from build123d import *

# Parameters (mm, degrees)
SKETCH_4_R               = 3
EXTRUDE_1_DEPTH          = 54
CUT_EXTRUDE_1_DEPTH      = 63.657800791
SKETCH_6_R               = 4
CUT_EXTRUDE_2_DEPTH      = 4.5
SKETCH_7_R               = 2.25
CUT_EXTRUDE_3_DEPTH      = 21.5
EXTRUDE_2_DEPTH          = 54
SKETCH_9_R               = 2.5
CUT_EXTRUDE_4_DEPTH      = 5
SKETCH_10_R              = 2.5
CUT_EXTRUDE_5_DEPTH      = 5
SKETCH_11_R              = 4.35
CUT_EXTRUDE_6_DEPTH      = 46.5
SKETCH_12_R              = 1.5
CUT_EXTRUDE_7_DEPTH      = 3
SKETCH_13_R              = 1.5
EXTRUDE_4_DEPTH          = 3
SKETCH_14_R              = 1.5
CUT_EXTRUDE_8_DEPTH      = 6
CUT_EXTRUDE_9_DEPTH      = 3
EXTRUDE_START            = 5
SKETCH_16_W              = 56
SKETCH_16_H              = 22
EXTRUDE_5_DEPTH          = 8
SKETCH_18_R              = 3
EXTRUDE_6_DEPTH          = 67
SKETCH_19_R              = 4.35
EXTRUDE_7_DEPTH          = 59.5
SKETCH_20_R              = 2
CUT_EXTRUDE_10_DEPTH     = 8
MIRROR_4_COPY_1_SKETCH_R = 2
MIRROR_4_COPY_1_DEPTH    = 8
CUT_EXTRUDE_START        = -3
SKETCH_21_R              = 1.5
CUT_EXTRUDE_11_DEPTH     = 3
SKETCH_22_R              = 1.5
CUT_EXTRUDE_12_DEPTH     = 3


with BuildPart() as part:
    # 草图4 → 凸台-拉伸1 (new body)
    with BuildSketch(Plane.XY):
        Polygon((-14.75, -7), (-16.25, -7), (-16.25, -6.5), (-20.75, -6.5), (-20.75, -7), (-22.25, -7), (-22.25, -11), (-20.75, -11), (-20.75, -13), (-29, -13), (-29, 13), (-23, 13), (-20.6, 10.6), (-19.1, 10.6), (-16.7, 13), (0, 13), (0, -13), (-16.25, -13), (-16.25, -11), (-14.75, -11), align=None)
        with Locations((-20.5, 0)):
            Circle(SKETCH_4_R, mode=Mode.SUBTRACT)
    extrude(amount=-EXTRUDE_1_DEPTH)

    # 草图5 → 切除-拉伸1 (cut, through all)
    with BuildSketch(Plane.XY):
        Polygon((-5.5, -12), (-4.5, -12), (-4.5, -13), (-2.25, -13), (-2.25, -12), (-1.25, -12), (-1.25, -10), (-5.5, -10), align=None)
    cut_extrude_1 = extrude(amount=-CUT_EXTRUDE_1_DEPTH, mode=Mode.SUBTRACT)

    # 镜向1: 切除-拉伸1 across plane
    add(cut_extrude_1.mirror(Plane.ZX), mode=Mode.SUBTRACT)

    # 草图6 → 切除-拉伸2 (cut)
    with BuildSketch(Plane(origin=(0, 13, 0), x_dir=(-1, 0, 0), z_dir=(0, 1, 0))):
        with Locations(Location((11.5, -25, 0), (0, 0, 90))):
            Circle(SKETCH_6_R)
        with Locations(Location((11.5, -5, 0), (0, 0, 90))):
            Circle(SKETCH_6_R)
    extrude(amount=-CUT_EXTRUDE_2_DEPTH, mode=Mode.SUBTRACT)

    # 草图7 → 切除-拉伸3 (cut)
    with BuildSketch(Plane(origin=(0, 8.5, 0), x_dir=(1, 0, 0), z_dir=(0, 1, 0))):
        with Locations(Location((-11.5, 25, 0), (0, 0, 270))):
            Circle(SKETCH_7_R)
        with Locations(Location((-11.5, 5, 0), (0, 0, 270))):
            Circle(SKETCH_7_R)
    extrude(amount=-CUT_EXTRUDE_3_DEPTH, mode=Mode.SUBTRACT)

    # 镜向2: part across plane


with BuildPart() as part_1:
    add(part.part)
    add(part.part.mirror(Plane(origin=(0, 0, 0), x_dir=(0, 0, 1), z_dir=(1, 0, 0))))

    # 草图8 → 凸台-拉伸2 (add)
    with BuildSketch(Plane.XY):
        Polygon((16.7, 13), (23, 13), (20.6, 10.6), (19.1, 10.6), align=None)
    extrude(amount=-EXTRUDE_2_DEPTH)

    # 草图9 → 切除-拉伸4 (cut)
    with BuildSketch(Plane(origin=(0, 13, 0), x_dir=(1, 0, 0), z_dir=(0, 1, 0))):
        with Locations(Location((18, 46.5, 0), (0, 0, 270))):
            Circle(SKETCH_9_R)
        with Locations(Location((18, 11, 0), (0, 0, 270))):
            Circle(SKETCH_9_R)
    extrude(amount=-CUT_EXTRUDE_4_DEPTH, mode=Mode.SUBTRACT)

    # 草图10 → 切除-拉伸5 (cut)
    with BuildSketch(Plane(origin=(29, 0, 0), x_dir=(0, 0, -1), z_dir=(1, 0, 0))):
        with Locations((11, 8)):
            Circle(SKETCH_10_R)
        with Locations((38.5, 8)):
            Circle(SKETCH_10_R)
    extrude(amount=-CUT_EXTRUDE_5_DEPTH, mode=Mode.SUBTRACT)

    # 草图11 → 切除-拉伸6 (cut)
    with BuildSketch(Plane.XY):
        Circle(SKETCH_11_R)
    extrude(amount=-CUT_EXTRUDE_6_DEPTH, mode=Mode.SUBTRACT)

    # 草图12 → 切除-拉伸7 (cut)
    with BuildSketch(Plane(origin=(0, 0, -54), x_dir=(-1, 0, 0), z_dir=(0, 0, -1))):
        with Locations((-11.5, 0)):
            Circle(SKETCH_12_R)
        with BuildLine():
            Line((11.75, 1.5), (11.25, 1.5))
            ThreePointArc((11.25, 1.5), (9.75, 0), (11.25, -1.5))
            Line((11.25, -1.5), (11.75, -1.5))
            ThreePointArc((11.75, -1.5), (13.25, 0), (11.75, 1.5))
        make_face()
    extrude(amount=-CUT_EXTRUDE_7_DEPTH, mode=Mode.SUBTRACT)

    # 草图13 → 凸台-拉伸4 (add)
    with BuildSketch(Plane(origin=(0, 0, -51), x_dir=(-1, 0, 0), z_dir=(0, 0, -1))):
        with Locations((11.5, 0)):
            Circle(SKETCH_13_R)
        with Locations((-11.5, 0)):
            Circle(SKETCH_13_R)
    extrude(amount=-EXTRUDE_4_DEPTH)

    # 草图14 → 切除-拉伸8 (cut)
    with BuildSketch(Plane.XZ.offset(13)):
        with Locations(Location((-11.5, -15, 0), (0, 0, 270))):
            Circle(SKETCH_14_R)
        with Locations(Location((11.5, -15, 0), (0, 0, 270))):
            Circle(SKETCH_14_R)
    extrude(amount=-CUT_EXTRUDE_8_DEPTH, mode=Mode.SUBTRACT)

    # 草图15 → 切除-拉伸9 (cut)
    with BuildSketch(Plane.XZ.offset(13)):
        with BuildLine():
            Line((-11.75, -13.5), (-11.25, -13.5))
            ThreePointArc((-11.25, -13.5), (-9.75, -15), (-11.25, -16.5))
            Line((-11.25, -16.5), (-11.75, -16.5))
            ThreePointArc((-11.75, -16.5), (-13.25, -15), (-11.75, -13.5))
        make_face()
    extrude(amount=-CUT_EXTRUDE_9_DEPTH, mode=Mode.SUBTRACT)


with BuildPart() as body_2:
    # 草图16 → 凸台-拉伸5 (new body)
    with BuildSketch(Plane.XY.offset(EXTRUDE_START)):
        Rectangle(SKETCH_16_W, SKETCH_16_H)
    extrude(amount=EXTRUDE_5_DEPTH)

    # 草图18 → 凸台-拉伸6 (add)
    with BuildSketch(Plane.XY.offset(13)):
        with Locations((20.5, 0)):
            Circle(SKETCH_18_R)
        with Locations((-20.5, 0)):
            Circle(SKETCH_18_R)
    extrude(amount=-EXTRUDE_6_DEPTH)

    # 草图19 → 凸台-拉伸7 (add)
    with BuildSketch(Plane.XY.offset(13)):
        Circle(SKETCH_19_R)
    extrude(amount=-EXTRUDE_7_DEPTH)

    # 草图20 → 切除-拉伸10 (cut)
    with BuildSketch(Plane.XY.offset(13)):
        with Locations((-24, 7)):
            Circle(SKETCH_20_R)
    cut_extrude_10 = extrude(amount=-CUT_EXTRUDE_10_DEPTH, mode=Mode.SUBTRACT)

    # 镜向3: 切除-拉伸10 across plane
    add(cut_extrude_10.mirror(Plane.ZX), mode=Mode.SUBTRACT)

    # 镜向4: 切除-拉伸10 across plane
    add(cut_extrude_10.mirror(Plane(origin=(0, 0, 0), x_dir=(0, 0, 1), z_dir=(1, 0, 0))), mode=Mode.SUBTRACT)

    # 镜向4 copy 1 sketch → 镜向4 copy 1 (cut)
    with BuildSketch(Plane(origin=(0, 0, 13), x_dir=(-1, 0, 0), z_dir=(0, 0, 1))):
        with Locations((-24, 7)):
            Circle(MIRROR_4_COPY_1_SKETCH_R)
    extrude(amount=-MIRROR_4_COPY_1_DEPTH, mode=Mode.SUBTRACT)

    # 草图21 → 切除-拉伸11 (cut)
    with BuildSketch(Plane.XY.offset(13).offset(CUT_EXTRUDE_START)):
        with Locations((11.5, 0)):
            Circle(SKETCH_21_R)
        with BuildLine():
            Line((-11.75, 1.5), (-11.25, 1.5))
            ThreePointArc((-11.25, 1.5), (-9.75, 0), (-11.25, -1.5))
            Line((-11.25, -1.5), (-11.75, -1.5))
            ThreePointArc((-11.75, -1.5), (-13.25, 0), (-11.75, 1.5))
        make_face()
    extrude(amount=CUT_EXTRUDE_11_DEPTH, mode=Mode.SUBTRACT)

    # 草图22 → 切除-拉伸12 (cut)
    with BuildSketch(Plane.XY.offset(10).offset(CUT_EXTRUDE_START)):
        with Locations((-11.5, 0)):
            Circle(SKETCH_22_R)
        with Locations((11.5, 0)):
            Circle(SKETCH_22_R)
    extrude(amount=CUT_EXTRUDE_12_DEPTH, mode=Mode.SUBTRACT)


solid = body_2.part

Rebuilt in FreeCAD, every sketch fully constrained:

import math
import FreeCAD as App
import Part
import Sketcher
from FreeCAD import Vector

doc = App.newDocument("Part")
body = doc.addObject("PartDesign::Body", "Body")

sketch1 = body.newObject("Sketcher::SketchObject", "Sketch")
sketch1.AttachmentSupport = (doc.getObject("XY_Plane"), [""])
sketch1.MapMode = "FlatFace"
sketch1.addGeometry([
    Part.LineSegment(Vector(-16.25, -7, 0), Vector(-14.75, -7, 0)),
    Part.LineSegment(Vector(-14.75, -7, 0), Vector(-14.75, -11, 0)),
    Part.LineSegment(Vector(-14.75, -11, 0), Vector(-16.25, -11, 0)),
    Part.LineSegment(Vector(-16.25, -11, 0), Vector(-16.25, -13, 0)),
    Part.LineSegment(Vector(-16.25, -13, 0), Vector(0, -13, 0)),
    Part.LineSegment(Vector(0, -13, 0), Vector(0, 13, 0)),
    Part.LineSegment(Vector(0, 13, 0), Vector(-16.7, 13, 0)),
    Part.LineSegment(Vector(-16.7, 13, 0), Vector(-19.1, 10.6, 0)),
    Part.LineSegment(Vector(-19.1, 10.6, 0), Vector(-20.6, 10.6, 0)),
    Part.LineSegment(Vector(-20.6, 10.6, 0), Vector(-23, 13, 0)),
    Part.LineSegment(Vector(-23, 13, 0), Vector(-29, 13, 0)),
    Part.LineSegment(Vector(-29, 13, 0), Vector(-29, -13, 0)),
    Part.LineSegment(Vector(-29, -13, 0), Vector(-20.75, -13, 0)),
    Part.LineSegment(Vector(-20.75, -13, 0), Vector(-20.75, -11, 0)),
    Part.LineSegment(Vector(-20.75, -11, 0), Vector(-22.25, -11, 0)),
    Part.LineSegment(Vector(-22.25, -11, 0), Vector(-22.25, -7, 0)),
    Part.LineSegment(Vector(-22.25, -7, 0), Vector(-20.75, -7, 0)),
    Part.LineSegment(Vector(-20.75, -7, 0), Vector(-20.75, -6.5, 0)),
    Part.LineSegment(Vector(-20.75, -6.5, 0), Vector(-16.25, -6.5, 0)),
    Part.LineSegment(Vector(-16.25, -6.5, 0), Vector(-16.25, -7, 0)),
    Part.Circle(Vector(-20.5, 0, 0), Vector(0, 0, 1), 3),
], False)
sketch1.addConstraint([
    Sketcher.Constraint("Coincident", 0, 2, 1, 1),
    Sketcher.Constraint("Coincident", 1, 2, 2, 1),
    Sketcher.Constraint("Coincident", 2, 2, 3, 1),
    Sketcher.Constraint("Coincident", 3, 2, 4, 1),
    Sketcher.Constraint("Coincident", 4, 2, 5, 1),
    Sketcher.Constraint("Coincident", 5, 2, 6, 1),
    Sketcher.Constraint("Coincident", 6, 2, 7, 1),
    Sketcher.Constraint("Coincident", 7, 2, 8, 1),
    Sketcher.Constraint("Coincident", 8, 2, 9, 1),
    Sketcher.Constraint("Coincident", 9, 2, 10, 1),
    Sketcher.Constraint("Coincident", 10, 2, 11, 1),
    Sketcher.Constraint("Coincident", 11, 2, 12, 1),
    Sketcher.Constraint("Coincident", 12, 2, 13, 1),
    Sketcher.Constraint("Coincident", 13, 2, 14, 1),
    Sketcher.Constraint("Coincident", 14, 2, 15, 1),
    Sketcher.Constraint("Coincident", 15, 2, 16, 1),
    Sketcher.Constraint("Coincident", 16, 2, 17, 1),
    Sketcher.Constraint("Coincident", 17, 2, 18, 1),
    Sketcher.Constraint("Coincident", 18, 2, 19, 1),
    Sketcher.Constraint("Coincident", 19, 2, 0, 1),
    Sketcher.Constraint("Horizontal", 0),
    Sketcher.Constraint("Vertical", 1),
    Sketcher.Constraint("Horizontal", 2),
    Sketcher.Constraint("Vertical", 3),
    Sketcher.Constraint("Horizontal", 4),
    Sketcher.Constraint("Vertical", 5),
    Sketcher.Constraint("Horizontal", 6),
    Sketcher.Constraint("Horizontal", 8),
    Sketcher.Constraint("Horizontal", 10),
    Sketcher.Constraint("Vertical", 11),
    Sketcher.Constraint("Horizontal", 12),
    Sketcher.Constraint("Vertical", 13),
    Sketcher.Constraint("Horizontal", 14),
    Sketcher.Constraint("Vertical", 15),
    Sketcher.Constraint("Horizontal", 16),
    Sketcher.Constraint("Vertical", 17),
    Sketcher.Constraint("Horizontal", 18),
    Sketcher.Constraint("Vertical", 19),
    Sketcher.Constraint("Symmetric", 4, 2, 5, 2, -1, 1),
    Sketcher.Constraint("PointOnObject", 20, 3, -1),
    Sketcher.Constraint("Perpendicular", 7, 9),
    Sketcher.Constraint("Horizontal", 6, 2, 9, 2),
    Sketcher.Constraint("Horizontal", 4, 2, 11, 2),
    Sketcher.Constraint("Horizontal", 2, 2, 13, 2),
    Sketcher.Constraint("Horizontal", 0, 2, 15, 2),
    Sketcher.Constraint("Vertical", 13, 2, 16, 2),
    Sketcher.Constraint("Vertical", 3, 2, 18, 2),
    Sketcher.Constraint("Equal", 2, 8),
    Sketcher.Constraint("Equal", 8, 14),
    Sketcher.Constraint("Equal", 7, 9),
    Sketcher.Constraint("Diameter", 20, 6.0),
    Sketcher.Constraint("DistanceX", 10, 2, 10, 1, 6.0),
    Sketcher.Constraint("DistanceY", 1, 2, 1, 1, 4.0),
    Sketcher.Constraint("DistanceY", 3, 2, 3, 1, 2.0),
    Sketcher.Constraint("DistanceY", 5, 1, 5, 2, 26.0),
    Sketcher.Constraint("DistanceX", 0, 1, 0, 2, 1.5),
    Sketcher.Constraint("DistanceX", 6, 2, 6, 1, 16.7),
    Sketcher.Constraint("DistanceX", 18, 1, 18, 2, 4.5),
    Sketcher.Constraint("DistanceY", 17, 1, 17, 2, 0.5),
    Sketcher.Constraint("DistanceX", 9, 2, -1, 1, 23.0),
    Sketcher.Constraint("DistanceX", 4, 1, 4, 2, 16.25),
    Sketcher.Constraint("DistanceX", 20, 3, -1, 1, 20.5),
])
pad1 = body.newObject("PartDesign::Pad", "Pad")
pad1.Profile = sketch1
pad1.Length = 54
pad1.Reversed = True

sketch2 = body.newObject("Sketcher::SketchObject", "Sketch001")
sketch2.AttachmentSupport = (doc.getObject("XY_Plane"), [""])
sketch2.MapMode = "FlatFace"
sketch2.addGeometry([
    Part.LineSegment(Vector(-5.5, -12, 0), Vector(-4.5, -12, 0)),
    Part.LineSegment(Vector(-4.5, -12, 0), Vector(-4.5, -13, 0)),
    Part.LineSegment(Vector(-4.5, -13, 0), Vector(-2.25, -13, 0)),
    Part.LineSegment(Vector(-2.25, -13, 0), Vector(-2.25, -12, 0)),
    Part.LineSegment(Vector(-2.25, -12, 0), Vector(-1.25, -12, 0)),
    Part.LineSegment(Vector(-1.25, -12, 0), Vector(-1.25, -10, 0)),
    Part.LineSegment(Vector(-1.25, -10, 0), Vector(-5.5, -10, 0)),
    Part.LineSegment(Vector(-5.5, -10, 0), Vector(-5.5, -12, 0)),
], False)
sketch2.addConstraint([
    Sketcher.Constraint("Coincident", 0, 2, 1, 1),
    Sketcher.Constraint("Coincident", 1, 2, 2, 1),
    Sketcher.Constraint("Coincident", 2, 2, 3, 1),
    Sketcher.Constraint("Coincident", 3, 2, 4, 1),
    Sketcher.Constraint("Coincident", 4, 2, 5, 1),
    Sketcher.Constraint("Coincident", 5, 2, 6, 1),
    Sketcher.Constraint("Coincident", 6, 2, 7, 1),
    Sketcher.Constraint("Coincident", 7, 2, 0, 1),
    Sketcher.Constraint("Horizontal", 0),
    Sketcher.Constraint("Vertical", 1),
    Sketcher.Constraint("Horizontal", 2),
    Sketcher.Constraint("Vertical", 3),
    Sketcher.Constraint("Horizontal", 4),
    Sketcher.Constraint("Vertical", 5),
    Sketcher.Constraint("Horizontal", 6),
    Sketcher.Constraint("Vertical", 7),
    Sketcher.Constraint("Horizontal", 0, 2, 3, 2),
    Sketcher.Constraint("Equal", 0, 4),
    Sketcher.Constraint("Equal", 4, 1),
    Sketcher.Constraint("DistanceX", 0, 1, 0, 2, 1.0),
    Sketcher.Constraint("DistanceY", 5, 1, 5, 2, 2.0),
    Sketcher.Constraint("DistanceY", 0, 2, -1, 1, 12.0),
    Sketcher.Constraint("DistanceX", 2, 1, 2, 2, 2.25),
    Sketcher.Constraint("DistanceX", 0, 2, -1, 1, 4.5),
])
pocket1 = body.newObject("PartDesign::Pocket", "Pocket")
pocket1.Profile = sketch2
pocket1.Type = "ThroughAll"
doc.recompute()

mirrored = body.newObject("PartDesign::Mirrored", "Mirrored")
mirrored.Originals = [pocket1]
mirrored.MirrorPlane = (doc.getObject("XZ_Plane"), [""])
body.Tip = mirrored

sketch3 = body.newObject("Sketcher::SketchObject", "Sketch002")
sketch3.AttachmentSupport = (doc.getObject("XZ_Plane"), [""])
sketch3.MapMode = "FlatFace"
sketch3.AttachmentOffset = App.Placement(Vector(0, 0, -13), App.Rotation())
sketch3.addGeometry([
    Part.Circle(Vector(-11.5, -25, 0), Vector(0, 0, 1), 4),
    Part.Circle(Vector(-11.5, -5, 0), Vector(0, 0, 1), 4),
], False)
sketch3.addConstraint([
    Sketcher.Constraint("Equal", 0, 1),
    Sketcher.Constraint("Vertical", 0, 3, 1, 3),
    Sketcher.Constraint("Diameter", 0, 8.0),
    Sketcher.Constraint("DistanceY", 0, 3, -1, 1, 25.0),
    Sketcher.Constraint("DistanceY", 1, 3, -1, 1, 5.0),
    Sketcher.Constraint("DistanceX", 0, 3, -1, 1, 11.5),
])
pocket2 = body.newObject("PartDesign::Pocket", "Pocket001")
pocket2.Profile = sketch3
pocket2.Length = 4.5
pocket2.Reversed = True

sketch4 = body.newObject("Sketcher::SketchObject", "Sketch003")
sketch4.AttachmentSupport = (doc.getObject("XZ_Plane"), [""])
sketch4.MapMode = "FlatFace"
sketch4.AttachmentOffset = App.Placement(Vector(0, 0, -8.5), App.Rotation())
sketch4.addGeometry([
    Part.Circle(Vector(-11.5, -25, 0), Vector(0, 0, 1), 2.25),
    Part.Circle(Vector(-11.5, -5, 0), Vector(0, 0, 1), 2.25),
], False)
sketch4.addConstraint([
    Sketcher.Constraint("Equal", 0, 1),
    Sketcher.Constraint("Vertical", 0, 3, 1, 3),
    Sketcher.Constraint("Diameter", 0, 4.5),
    Sketcher.Constraint("DistanceY", 0, 3, -1, 1, 25.0),
    Sketcher.Constraint("DistanceY", 1, 3, -1, 1, 5.0),
    Sketcher.Constraint("DistanceX", 0, 3, -1, 1, 11.5),
])
pocket3 = body.newObject("PartDesign::Pocket", "Pocket002")
pocket3.Profile = sketch4
pocket3.Length = 21.5
pocket3.Reversed = True
body2 = doc.addObject("PartDesign::Body", "Body001")
doc.recompute()

body2.BaseFeature = body
doc.recompute()

mirroring = doc.addObject("Part::Mirroring", "Mirroring")
mirroring.Source = body
mirroring.Base = Vector(0, 0, 0)
mirroring.Normal = Vector(1, 0, 0)
body3 = doc.addObject("PartDesign::Body", "Body002")
body3.BaseFeature = mirroring
boolean = body2.newObject("PartDesign::Boolean", "Boolean")
boolean.Type = "Fuse"
boolean.addObjects([body3])
doc.recompute()

sketch5 = body2.newObject("Sketcher::SketchObject", "Sketch004")
sketch5.AttachmentSupport = (doc.getObject("XY_Plane001"), [""])
sketch5.MapMode = "FlatFace"
sketch5.addGeometry([
    Part.LineSegment(Vector(23, 13, 0), Vector(16.7, 13, 0)),
    Part.LineSegment(Vector(16.7, 13, 0), Vector(19.1, 10.6, 0)),
    Part.LineSegment(Vector(19.1, 10.6, 0), Vector(20.6, 10.6, 0)),
    Part.LineSegment(Vector(20.6, 10.6, 0), Vector(23, 13, 0)),
], False)
sketch5.addConstraint([
    Sketcher.Constraint("Coincident", 0, 2, 1, 1),
    Sketcher.Constraint("Coincident", 1, 2, 2, 1),
    Sketcher.Constraint("Coincident", 2, 2, 3, 1),
    Sketcher.Constraint("Coincident", 3, 2, 0, 1),
    Sketcher.Constraint("Horizontal", 0),
    Sketcher.Constraint("Horizontal", 2),
    Sketcher.Constraint("Perpendicular", 1, 3),
    Sketcher.Constraint("Equal", 1, 3),
    Sketcher.Constraint("DistanceX", 0, 2, 0, 1, 6.3),
    Sketcher.Constraint("DistanceX", 2, 1, 2, 2, 1.5),
    Sketcher.Constraint("DistanceY", -1, 1, 0, 2, 13.0),
    Sketcher.Constraint("DistanceX", -1, 1, 3, 2, 23.0),
])
pad2 = body2.newObject("PartDesign::Pad", "Pad001")
pad2.Profile = sketch5
pad2.Length = 54
pad2.Reversed = True

sketch6 = body2.newObject("Sketcher::SketchObject", "Sketch005")
sketch6.AttachmentSupport = (doc.getObject("XZ_Plane001"), [""])
sketch6.MapMode = "FlatFace"
sketch6.AttachmentOffset = App.Placement(Vector(0, 0, -13), App.Rotation())
sketch6.addGeometry([
    Part.Circle(Vector(18, -46.5, 0), Vector(0, 0, 1), 2.5),
    Part.Circle(Vector(18, -11, 0), Vector(0, 0, 1), 2.5),
], False)
sketch6.addConstraint([
    Sketcher.Constraint("Equal", 0, 1),
    Sketcher.Constraint("Vertical", 0, 3, 1, 3),
    Sketcher.Constraint("Diameter", 0, 5.0),
    Sketcher.Constraint("DistanceX", -1, 1, 0, 3, 18.0),
    Sketcher.Constraint("DistanceY", 1, 3, -1, 1, 11.0),
    Sketcher.Constraint("DistanceY", 0, 3, -1, 1, 46.5),
])
pocket4 = body2.newObject("PartDesign::Pocket", "Pocket003")
pocket4.Profile = sketch6
pocket4.Length = 5
pocket4.Reversed = True

sketch7 = body2.newObject("Sketcher::SketchObject", "Sketch006")
sketch7.AttachmentSupport = (doc.getObject("YZ_Plane001"), [""])
sketch7.MapMode = "FlatFace"
sketch7.AttachmentOffset = App.Placement(Vector(0, 0, 29), App.Rotation())
sketch7.addGeometry([
    Part.Circle(Vector(8, -11, 0), Vector(0, 0, 1), 2.5),
    Part.Circle(Vector(8, -38.5, 0), Vector(0, 0, 1), 2.5),
], False)
sketch7.addConstraint([
    Sketcher.Constraint("Equal", 0, 1),
    Sketcher.Constraint("Vertical", 0, 3, 1, 3),
    Sketcher.Constraint("Diameter", 0, 5.0),
    Sketcher.Constraint("DistanceX", -1, 1, 0, 3, 8.0),
    Sketcher.Constraint("DistanceY", 0, 3, -1, 1, 11.0),
    Sketcher.Constraint("DistanceY", 1, 3, -1, 1, 38.5),
])
pocket5 = body2.newObject("PartDesign::Pocket", "Pocket004")
pocket5.Profile = sketch7
pocket5.Length = 5

sketch8 = body2.newObject("Sketcher::SketchObject", "Sketch007")
sketch8.AttachmentSupport = (doc.getObject("XY_Plane001"), [""])
sketch8.MapMode = "FlatFace"
sketch8.addGeometry(Part.Circle(Vector(0, 0, 0), Vector(0, 0, 1), 4.35), False)
sketch8.addConstraint([
    Sketcher.Constraint("Coincident", 0, 3, -1, 1),
    Sketcher.Constraint("Diameter", 0, 8.7),
])
pocket6 = body2.newObject("PartDesign::Pocket", "Pocket005")
pocket6.Profile = sketch8
pocket6.Length = 46.5

sketch9 = body2.newObject("Sketcher::SketchObject", "Sketch008")
sketch9.AttachmentSupport = (doc.getObject("XY_Plane001"), [""])
sketch9.MapMode = "FlatFace"
sketch9.AttachmentOffset = App.Placement(Vector(0, 0, -54), App.Rotation())
sketch9.addGeometry([
    Part.Circle(Vector(11.5, 0, 0), Vector(0, 0, 1), 1.5),
    Part.LineSegment(Vector(-11.75, 1.5, 0), Vector(-11.25, 1.5, 0)),
    Part.ArcOfCircle(Part.Circle(Vector(-11.25, 0, 0), Vector(0, 0, 1), 1.5), math.radians(-90), math.radians(90)),
    Part.LineSegment(Vector(-11.25, -1.5, 0), Vector(-11.75, -1.5, 0)),
    Part.ArcOfCircle(Part.Circle(Vector(-11.75, 0, 0), Vector(0, 0, 1), 1.5), math.radians(90), math.radians(270)),
], False)
sketch9.addConstraint([
    Sketcher.Constraint("Tangent", 1, 2, 2, 2),
    Sketcher.Constraint("Tangent", 2, 1, 3, 1),
    Sketcher.Constraint("Tangent", 3, 2, 4, 2),
    Sketcher.Constraint("Tangent", 4, 1, 1, 1),
    Sketcher.Constraint("Horizontal", 1),
    Sketcher.Constraint("Horizontal", 3),
    Sketcher.Constraint("Equal", 0, 2),
    Sketcher.Constraint("PointOnObject", 0, 3, -1),
    Sketcher.Constraint("PointOnObject", 2, 3, -1),
    Sketcher.Constraint("Diameter", 0, 3.0),
    Sketcher.Constraint("DistanceX", 1, 1, 1, 2, 0.5),
    Sketcher.Constraint("DistanceX", -1, 1, 0, 3, 11.5),
    Sketcher.Constraint("DistanceX", 2, 3, -1, 1, 11.25),
])
pocket7 = body2.newObject("PartDesign::Pocket", "Pocket006")
pocket7.Profile = sketch9
pocket7.Length = 3
pocket7.Reversed = True

sketch10 = body2.newObject("Sketcher::SketchObject", "Sketch009")
sketch10.AttachmentSupport = (doc.getObject("XY_Plane001"), [""])
sketch10.MapMode = "FlatFace"
sketch10.AttachmentOffset = App.Placement(Vector(0, 0, -51), App.Rotation())
sketch10.addGeometry([
    Part.Circle(Vector(-11.5, 0, 0), Vector(0, 0, 1), 1.5),
    Part.Circle(Vector(11.5, 0, 0), Vector(0, 0, 1), 1.5),
], False)
sketch10.addConstraint([
    Sketcher.Constraint("Equal", 0, 1),
    Sketcher.Constraint("Symmetric", 0, 3, 1, 3, -1, 1),
    Sketcher.Constraint("PointOnObject", 0, 3, -1),
    Sketcher.Constraint("Diameter", 0, 3.0),
    Sketcher.Constraint("DistanceX", 0, 3, 1, 3, 23.0),
])
pad3 = body2.newObject("PartDesign::Pad", "Pad002")
pad3.Profile = sketch10
pad3.Length = 3

sketch11 = body2.newObject("Sketcher::SketchObject", "Sketch010")
sketch11.AttachmentSupport = (doc.getObject("XZ_Plane001"), [""])
sketch11.MapMode = "FlatFace"
sketch11.AttachmentOffset = App.Placement(Vector(0, 0, 13), App.Rotation())
sketch11.addGeometry([
    Part.Circle(Vector(-11.5, -15, 0), Vector(0, 0, 1), 1.5),
    Part.Circle(Vector(11.5, -15, 0), Vector(0, 0, 1), 1.5),
], False)
sketch11.addConstraint([
    Sketcher.Constraint("Equal", 0, 1),
    Sketcher.Constraint("Symmetric", 0, 3, 1, 3, -2),
    Sketcher.Constraint("Diameter", 0, 3.0),
    Sketcher.Constraint("DistanceY", 0, 3, -1, 1, 15.0),
    Sketcher.Constraint("DistanceX", 0, 3, 1, 3, 23.0),
])
pocket8 = body2.newObject("PartDesign::Pocket", "Pocket007")
pocket8.Profile = sketch11
pocket8.Length = 6

sketch12 = body2.newObject("Sketcher::SketchObject", "Sketch011")
sketch12.AttachmentSupport = (doc.getObject("XZ_Plane001"), [""])
sketch12.MapMode = "FlatFace"
sketch12.AttachmentOffset = App.Placement(Vector(0, 0, 13), App.Rotation())
sketch12.addGeometry([
    Part.LineSegment(Vector(-11.25, -13.5, 0), Vector(-11.75, -13.5, 0)),
    Part.ArcOfCircle(Part.Circle(Vector(-11.75, -15, 0), Vector(0, 0, 1), 1.5), math.radians(90), math.radians(270)),
    Part.LineSegment(Vector(-11.75, -16.5, 0), Vector(-11.25, -16.5, 0)),
    Part.ArcOfCircle(Part.Circle(Vector(-11.25, -15, 0), Vector(0, 0, 1), 1.5), math.radians(-90), math.radians(90)),
], False)
sketch12.addConstraint([
    Sketcher.Constraint("Tangent", 0, 2, 1, 1),
    Sketcher.Constraint("Tangent", 1, 2, 2, 1),
    Sketcher.Constraint("Tangent", 2, 2, 3, 1),
    Sketcher.Constraint("Tangent", 3, 2, 0, 1),
    Sketcher.Constraint("Horizontal", 0),
    Sketcher.Constraint("Horizontal", 2),
    Sketcher.Constraint("Radius", 1, 1.5),
    Sketcher.Constraint("DistanceX", 0, 2, 0, 1, 0.5),
    Sketcher.Constraint("DistanceY", 1, 3, -1, 1, 15.0),
    Sketcher.Constraint("DistanceX", 1, 3, -1, 1, 11.75),
])
pocket9 = body2.newObject("PartDesign::Pocket", "Pocket008")
pocket9.Profile = sketch12
pocket9.Length = 3
body4 = doc.addObject("PartDesign::Body", "Body003")

sketch13 = body4.newObject("Sketcher::SketchObject", "Sketch012")
sketch13.AttachmentSupport = (doc.getObject("XY_Plane003"), [""])
sketch13.MapMode = "FlatFace"
sketch13.AttachmentOffset = App.Placement(Vector(0, 0, 5), App.Rotation())
sketch13.addGeometry([
    Part.LineSegment(Vector(-28, 11, 0), Vector(-28, -11, 0)),
    Part.LineSegment(Vector(-28, -11, 0), Vector(28, -11, 0)),
    Part.LineSegment(Vector(28, -11, 0), Vector(28, 11, 0)),
    Part.LineSegment(Vector(28, 11, 0), Vector(-28, 11, 0)),
], False)
sketch13.addConstraint([
    Sketcher.Constraint("Coincident", 0, 2, 1, 1),
    Sketcher.Constraint("Coincident", 1, 2, 2, 1),
    Sketcher.Constraint("Coincident", 2, 2, 3, 1),
    Sketcher.Constraint("Coincident", 3, 2, 0, 1),
    Sketcher.Constraint("Vertical", 0),
    Sketcher.Constraint("Horizontal", 1),
    Sketcher.Constraint("Vertical", 2),
    Sketcher.Constraint("Horizontal", 3),
    Sketcher.Constraint("Symmetric", 0, 2, 2, 2, -1, 1),
    Sketcher.Constraint("DistanceX", 1, 1, 1, 2, 56.0),
    Sketcher.Constraint("DistanceY", 0, 2, 0, 1, 22.0),
])
pad4 = body4.newObject("PartDesign::Pad", "Pad003")
pad4.Profile = sketch13
pad4.Length = 8

sketch14 = body4.newObject("Sketcher::SketchObject", "Sketch013")
sketch14.AttachmentSupport = (doc.getObject("XY_Plane003"), [""])
sketch14.MapMode = "FlatFace"
sketch14.AttachmentOffset = App.Placement(Vector(0, 0, 13), App.Rotation())
sketch14.addGeometry([
    Part.Circle(Vector(20.5, 0, 0), Vector(0, 0, 1), 3),
    Part.Circle(Vector(-20.5, 0, 0), Vector(0, 0, 1), 3),
], False)
sketch14.addConstraint([
    Sketcher.Constraint("Equal", 0, 1),
    Sketcher.Constraint("Symmetric", 0, 3, 1, 3, -1, 1),
    Sketcher.Constraint("PointOnObject", 0, 3, -1),
    Sketcher.Constraint("Diameter", 0, 6.0),
    Sketcher.Constraint("DistanceX", 1, 3, 0, 3, 41.0),
])
pad5 = body4.newObject("PartDesign::Pad", "Pad004")
pad5.Profile = sketch14
pad5.Length = 67
pad5.Reversed = True

sketch15 = body4.newObject("Sketcher::SketchObject", "Sketch014")
sketch15.AttachmentSupport = (doc.getObject("XY_Plane003"), [""])
sketch15.MapMode = "FlatFace"
sketch15.AttachmentOffset = App.Placement(Vector(0, 0, 13), App.Rotation())
sketch15.addGeometry(Part.Circle(Vector(0, 0, 0), Vector(0, 0, 1), 4.35), False)
sketch15.addConstraint([
    Sketcher.Constraint("Coincident", 0, 3, -1, 1),
    Sketcher.Constraint("Diameter", 0, 8.7),
])
pad6 = body4.newObject("PartDesign::Pad", "Pad005")
pad6.Profile = sketch15
pad6.Length = 59.5
pad6.Reversed = True

sketch16 = body4.newObject("Sketcher::SketchObject", "Sketch015")
sketch16.AttachmentSupport = (doc.getObject("XY_Plane003"), [""])
sketch16.MapMode = "FlatFace"
sketch16.AttachmentOffset = App.Placement(Vector(0, 0, 13), App.Rotation())
sketch16.addGeometry(Part.Circle(Vector(-24, 7, 0), Vector(0, 0, 1), 2), False)
sketch16.addConstraint([
    Sketcher.Constraint("Diameter", 0, 4.0),
    Sketcher.Constraint("DistanceX", 0, 3, -1, 1, 24.0),
    Sketcher.Constraint("DistanceY", -1, 1, 0, 3, 7.0),
])
pocket10 = body4.newObject("PartDesign::Pocket", "Pocket009")
pocket10.Profile = sketch16
pocket10.Length = 8
doc.recompute()

mirrored2 = body4.newObject("PartDesign::Mirrored", "Mirrored001")
mirrored2.Originals = [pocket10]
mirrored2.MirrorPlane = (doc.getObject("XZ_Plane003"), [""])
body4.Tip = mirrored2
doc.recompute()

mirrored3 = body4.newObject("PartDesign::Mirrored", "Mirrored002")
mirrored3.Originals = [pocket10]
mirrored3.MirrorPlane = (doc.getObject("YZ_Plane003"), [""])
body4.Tip = mirrored3

sketch17 = body4.newObject("Sketcher::SketchObject", "Sketch016")
sketch17.AttachmentSupport = (doc.getObject("XY_Plane003"), [""])
sketch17.MapMode = "FlatFace"
sketch17.AttachmentOffset = App.Placement(Vector(0, 0, 13), App.Rotation())
sketch17.addGeometry(Part.Circle(Vector(24, -7, 0), Vector(0, 0, 1), 2), False)
sketch17.addConstraint([
    Sketcher.Constraint("Diameter", 0, 4.0),
    Sketcher.Constraint("DistanceX", -1, 1, 0, 3, 24.0),
    Sketcher.Constraint("DistanceY", 0, 3, -1, 1, 7.0),
])
pocket11 = body4.newObject("PartDesign::Pocket", "Pocket010")
pocket11.Profile = sketch17
pocket11.Length = 8

sketch18 = body4.newObject("Sketcher::SketchObject", "Sketch017")
sketch18.AttachmentSupport = (doc.getObject("XY_Plane003"), [""])
sketch18.MapMode = "FlatFace"
sketch18.AttachmentOffset = App.Placement(Vector(0, 0, 10), App.Rotation())
sketch18.addGeometry([
    Part.Circle(Vector(11.5, 0, 0), Vector(0, 0, 1), 1.5),
    Part.LineSegment(Vector(-11.25, 1.5, 0), Vector(-11.75, 1.5, 0)),
    Part.ArcOfCircle(Part.Circle(Vector(-11.75, 0, 0), Vector(0, 0, 1), 1.5), math.radians(90), math.radians(270)),
    Part.LineSegment(Vector(-11.75, -1.5, 0), Vector(-11.25, -1.5, 0)),
    Part.ArcOfCircle(Part.Circle(Vector(-11.25, 0, 0), Vector(0, 0, 1), 1.5), math.radians(-90), math.radians(90)),
], False)
sketch18.addConstraint([
    Sketcher.Constraint("Tangent", 1, 2, 2, 1),
    Sketcher.Constraint("Tangent", 2, 2, 3, 1),
    Sketcher.Constraint("Tangent", 3, 2, 4, 1),
    Sketcher.Constraint("Tangent", 4, 2, 1, 1),
    Sketcher.Constraint("Horizontal", 1),
    Sketcher.Constraint("Horizontal", 3),
    Sketcher.Constraint("Equal", 0, 2),
    Sketcher.Constraint("PointOnObject", 0, 3, -1),
    Sketcher.Constraint("PointOnObject", 2, 3, -1),
    Sketcher.Constraint("Diameter", 0, 3.0),
    Sketcher.Constraint("DistanceX", 1, 2, 1, 1, 0.5),
    Sketcher.Constraint("DistanceX", -1, 1, 0, 3, 11.5),
    Sketcher.Constraint("DistanceX", 2, 3, -1, 1, 11.75),
])
pocket12 = body4.newObject("PartDesign::Pocket", "Pocket011")
pocket12.Profile = sketch18
pocket12.Length = 3
pocket12.Reversed = True

sketch19 = body4.newObject("Sketcher::SketchObject", "Sketch018")
sketch19.AttachmentSupport = (doc.getObject("XY_Plane003"), [""])
sketch19.MapMode = "FlatFace"
sketch19.AttachmentOffset = App.Placement(Vector(0, 0, 7), App.Rotation())
sketch19.addGeometry([
    Part.Circle(Vector(-11.5, 0, 0), Vector(0, 0, 1), 1.5),
    Part.Circle(Vector(11.5, 0, 0), Vector(0, 0, 1), 1.5),
], False)
sketch19.addConstraint([
    Sketcher.Constraint("Equal", 0, 1),
    Sketcher.Constraint("Symmetric", 0, 3, 1, 3, -1, 1),
    Sketcher.Constraint("PointOnObject", 0, 3, -1),
    Sketcher.Constraint("Diameter", 0, 3.0),
    Sketcher.Constraint("DistanceX", 0, 3, 1, 3, 23.0),
])
pocket13 = body4.newObject("PartDesign::Pocket", "Pocket012")
pocket13.Profile = sketch19
pocket13.Length = 3
pocket13.Reversed = True
body2.Visibility = False
mirroring.Visibility = False

doc.recompute()
